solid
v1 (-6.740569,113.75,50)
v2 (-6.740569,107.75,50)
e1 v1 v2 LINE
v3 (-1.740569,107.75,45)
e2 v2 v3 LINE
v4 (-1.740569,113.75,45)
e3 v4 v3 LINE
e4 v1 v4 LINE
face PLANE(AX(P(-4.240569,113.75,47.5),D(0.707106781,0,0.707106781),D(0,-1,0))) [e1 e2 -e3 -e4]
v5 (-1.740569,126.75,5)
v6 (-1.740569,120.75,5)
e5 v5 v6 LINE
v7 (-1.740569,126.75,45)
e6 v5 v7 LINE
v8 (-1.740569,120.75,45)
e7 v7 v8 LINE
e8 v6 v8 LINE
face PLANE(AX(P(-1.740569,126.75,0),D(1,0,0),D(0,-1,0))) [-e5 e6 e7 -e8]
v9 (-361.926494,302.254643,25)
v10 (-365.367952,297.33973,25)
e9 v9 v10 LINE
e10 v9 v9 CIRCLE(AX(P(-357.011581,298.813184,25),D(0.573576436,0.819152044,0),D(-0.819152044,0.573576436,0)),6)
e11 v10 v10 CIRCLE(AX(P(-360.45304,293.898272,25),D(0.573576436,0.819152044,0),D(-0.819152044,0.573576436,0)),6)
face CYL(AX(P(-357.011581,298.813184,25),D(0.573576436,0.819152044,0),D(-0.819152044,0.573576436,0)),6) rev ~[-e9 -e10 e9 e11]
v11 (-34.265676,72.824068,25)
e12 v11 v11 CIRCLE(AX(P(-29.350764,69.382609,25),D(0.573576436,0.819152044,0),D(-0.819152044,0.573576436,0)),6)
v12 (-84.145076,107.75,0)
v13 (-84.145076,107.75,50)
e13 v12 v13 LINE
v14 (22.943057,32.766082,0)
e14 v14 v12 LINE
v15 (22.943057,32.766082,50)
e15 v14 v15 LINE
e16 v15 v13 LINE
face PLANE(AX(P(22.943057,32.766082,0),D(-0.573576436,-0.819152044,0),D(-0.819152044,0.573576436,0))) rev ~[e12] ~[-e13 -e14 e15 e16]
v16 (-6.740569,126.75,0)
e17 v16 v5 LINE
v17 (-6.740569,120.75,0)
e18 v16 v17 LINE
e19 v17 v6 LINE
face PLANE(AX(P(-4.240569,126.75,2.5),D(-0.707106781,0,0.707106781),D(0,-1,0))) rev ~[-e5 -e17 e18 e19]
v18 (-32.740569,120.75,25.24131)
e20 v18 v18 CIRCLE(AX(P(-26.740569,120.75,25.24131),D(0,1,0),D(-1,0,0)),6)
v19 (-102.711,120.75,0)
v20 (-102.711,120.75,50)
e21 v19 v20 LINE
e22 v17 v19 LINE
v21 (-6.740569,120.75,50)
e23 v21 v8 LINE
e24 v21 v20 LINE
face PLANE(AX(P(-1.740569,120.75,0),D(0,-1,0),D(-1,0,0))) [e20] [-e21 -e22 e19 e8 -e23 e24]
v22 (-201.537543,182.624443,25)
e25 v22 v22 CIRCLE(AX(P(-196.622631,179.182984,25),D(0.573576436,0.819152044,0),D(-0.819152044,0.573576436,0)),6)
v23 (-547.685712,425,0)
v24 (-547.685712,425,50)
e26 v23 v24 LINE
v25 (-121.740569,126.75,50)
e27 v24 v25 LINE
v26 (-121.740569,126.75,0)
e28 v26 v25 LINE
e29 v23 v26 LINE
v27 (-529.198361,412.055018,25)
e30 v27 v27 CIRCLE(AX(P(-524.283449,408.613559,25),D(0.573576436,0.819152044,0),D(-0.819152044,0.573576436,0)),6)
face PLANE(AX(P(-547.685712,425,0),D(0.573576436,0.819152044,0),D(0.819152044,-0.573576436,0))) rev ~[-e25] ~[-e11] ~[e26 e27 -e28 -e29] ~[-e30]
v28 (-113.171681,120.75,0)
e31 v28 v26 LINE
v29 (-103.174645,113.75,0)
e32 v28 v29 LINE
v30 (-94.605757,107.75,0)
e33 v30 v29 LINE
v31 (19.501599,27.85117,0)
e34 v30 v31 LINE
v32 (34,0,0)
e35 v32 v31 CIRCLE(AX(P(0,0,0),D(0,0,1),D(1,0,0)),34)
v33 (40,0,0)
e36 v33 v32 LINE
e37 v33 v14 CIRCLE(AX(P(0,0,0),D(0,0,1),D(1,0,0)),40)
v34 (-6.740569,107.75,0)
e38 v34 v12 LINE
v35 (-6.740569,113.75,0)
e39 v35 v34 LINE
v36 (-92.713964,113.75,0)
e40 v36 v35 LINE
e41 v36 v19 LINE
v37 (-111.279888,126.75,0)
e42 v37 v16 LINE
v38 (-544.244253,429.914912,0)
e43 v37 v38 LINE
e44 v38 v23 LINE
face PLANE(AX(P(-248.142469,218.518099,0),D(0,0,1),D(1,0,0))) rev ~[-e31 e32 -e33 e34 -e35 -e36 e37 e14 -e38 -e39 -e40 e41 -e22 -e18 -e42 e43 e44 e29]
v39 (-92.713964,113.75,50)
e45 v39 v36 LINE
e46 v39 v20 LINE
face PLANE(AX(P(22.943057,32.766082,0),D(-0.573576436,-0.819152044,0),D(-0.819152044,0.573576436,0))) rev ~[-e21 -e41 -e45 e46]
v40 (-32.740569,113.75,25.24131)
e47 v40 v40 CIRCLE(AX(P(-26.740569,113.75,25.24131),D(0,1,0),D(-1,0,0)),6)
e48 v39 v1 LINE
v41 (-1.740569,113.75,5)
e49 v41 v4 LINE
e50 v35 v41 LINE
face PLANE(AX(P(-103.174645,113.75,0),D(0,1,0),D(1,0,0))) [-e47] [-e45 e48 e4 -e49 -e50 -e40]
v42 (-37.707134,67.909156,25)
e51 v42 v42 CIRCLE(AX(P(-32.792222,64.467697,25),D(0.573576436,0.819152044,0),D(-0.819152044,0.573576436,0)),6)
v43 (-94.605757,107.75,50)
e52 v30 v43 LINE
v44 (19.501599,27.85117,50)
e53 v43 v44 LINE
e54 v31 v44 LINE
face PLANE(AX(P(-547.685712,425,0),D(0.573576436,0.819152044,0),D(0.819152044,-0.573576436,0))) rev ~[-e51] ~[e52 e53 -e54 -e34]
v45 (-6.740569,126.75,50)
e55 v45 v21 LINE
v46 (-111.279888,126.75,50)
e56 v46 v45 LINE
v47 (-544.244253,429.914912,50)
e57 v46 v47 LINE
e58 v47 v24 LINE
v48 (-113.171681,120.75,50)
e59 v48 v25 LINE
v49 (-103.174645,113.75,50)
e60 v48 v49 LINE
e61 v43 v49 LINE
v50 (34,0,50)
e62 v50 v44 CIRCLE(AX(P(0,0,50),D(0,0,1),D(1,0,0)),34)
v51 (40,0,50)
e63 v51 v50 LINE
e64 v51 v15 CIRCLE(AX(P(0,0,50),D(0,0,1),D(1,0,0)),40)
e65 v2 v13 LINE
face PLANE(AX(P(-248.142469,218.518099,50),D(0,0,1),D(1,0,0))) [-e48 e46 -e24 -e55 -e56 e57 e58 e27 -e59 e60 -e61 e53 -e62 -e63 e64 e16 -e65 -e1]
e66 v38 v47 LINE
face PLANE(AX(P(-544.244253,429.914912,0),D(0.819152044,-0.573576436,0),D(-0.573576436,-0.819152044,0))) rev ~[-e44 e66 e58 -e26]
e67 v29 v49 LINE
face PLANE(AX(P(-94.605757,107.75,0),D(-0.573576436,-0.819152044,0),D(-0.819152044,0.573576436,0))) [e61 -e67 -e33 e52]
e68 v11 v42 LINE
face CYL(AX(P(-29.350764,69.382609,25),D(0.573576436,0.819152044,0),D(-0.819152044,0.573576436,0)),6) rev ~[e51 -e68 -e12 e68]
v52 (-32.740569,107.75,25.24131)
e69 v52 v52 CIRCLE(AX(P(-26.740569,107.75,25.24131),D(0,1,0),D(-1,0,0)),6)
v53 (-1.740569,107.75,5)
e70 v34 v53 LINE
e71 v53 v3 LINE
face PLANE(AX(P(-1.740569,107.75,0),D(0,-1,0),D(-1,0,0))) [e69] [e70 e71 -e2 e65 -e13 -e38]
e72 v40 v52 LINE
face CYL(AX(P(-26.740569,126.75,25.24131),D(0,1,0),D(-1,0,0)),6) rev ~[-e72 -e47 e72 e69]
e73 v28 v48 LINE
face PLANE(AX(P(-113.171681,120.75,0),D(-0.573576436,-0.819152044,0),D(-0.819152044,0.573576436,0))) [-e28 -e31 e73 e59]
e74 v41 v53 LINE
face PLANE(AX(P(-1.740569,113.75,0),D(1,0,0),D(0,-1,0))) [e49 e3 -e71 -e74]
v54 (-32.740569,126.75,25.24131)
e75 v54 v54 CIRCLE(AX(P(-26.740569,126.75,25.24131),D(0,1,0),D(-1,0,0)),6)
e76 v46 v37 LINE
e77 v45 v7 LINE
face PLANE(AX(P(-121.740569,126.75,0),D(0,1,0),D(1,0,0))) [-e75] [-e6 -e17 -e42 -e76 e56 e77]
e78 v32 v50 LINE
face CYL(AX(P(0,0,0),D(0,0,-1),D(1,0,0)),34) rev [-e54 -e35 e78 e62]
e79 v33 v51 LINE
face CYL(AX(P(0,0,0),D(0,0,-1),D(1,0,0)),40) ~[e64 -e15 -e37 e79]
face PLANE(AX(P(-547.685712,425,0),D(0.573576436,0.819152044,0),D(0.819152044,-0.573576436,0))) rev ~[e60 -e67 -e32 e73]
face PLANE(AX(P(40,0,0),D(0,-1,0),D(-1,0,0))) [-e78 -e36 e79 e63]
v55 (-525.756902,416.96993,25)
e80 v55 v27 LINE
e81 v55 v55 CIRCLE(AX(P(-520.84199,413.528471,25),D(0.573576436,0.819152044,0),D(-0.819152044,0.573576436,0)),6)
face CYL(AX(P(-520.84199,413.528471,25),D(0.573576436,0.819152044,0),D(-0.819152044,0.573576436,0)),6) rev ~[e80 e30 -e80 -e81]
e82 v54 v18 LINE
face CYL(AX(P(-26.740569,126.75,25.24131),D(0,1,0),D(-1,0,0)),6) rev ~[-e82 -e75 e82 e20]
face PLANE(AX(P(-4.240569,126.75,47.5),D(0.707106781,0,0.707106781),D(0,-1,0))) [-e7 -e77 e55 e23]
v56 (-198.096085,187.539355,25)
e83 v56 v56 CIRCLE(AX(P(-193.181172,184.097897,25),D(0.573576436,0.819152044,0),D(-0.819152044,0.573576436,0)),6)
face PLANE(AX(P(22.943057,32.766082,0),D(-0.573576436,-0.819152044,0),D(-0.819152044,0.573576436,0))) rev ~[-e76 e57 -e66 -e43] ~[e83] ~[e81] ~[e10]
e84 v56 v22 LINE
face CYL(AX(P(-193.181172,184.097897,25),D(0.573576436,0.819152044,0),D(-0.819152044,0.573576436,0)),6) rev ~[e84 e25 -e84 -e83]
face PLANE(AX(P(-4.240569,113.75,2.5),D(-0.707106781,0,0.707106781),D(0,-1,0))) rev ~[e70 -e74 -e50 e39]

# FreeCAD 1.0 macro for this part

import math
import FreeCAD as App
import Part
import Sketcher
Q = App.Units.Quantity


def edges_at(feature, points):
    """Names of the edges that pass closest to the given points."""
    edges = feature.Shape.Edges
    near = lambda p: min(range(len(edges)), key=lambda i: edges[i].distToShape(Part.Vertex(*p))[0])
    return sorted({f"Edge{near(p) + 1}" for p in points})


def add_polygon(sketch, points):
    """Adds a closed chain of lines whose ends are joined by coincident constraints."""
    first, n = sketch.GeometryCount, len(points)
    for a, b in zip(points, points[1:] + points[:1]):
        sketch.addGeometry(Part.LineSegment(App.Vector(*a, 0), App.Vector(*b, 0)), False)
    for i in range(n):
        sketch.addConstraint(Sketcher.Constraint("Coincident", first + i, 2, first + (i + 1) % n, 1))

doc = App.newDocument("Part")
body = doc.addObject("PartDesign::Body", "Body")

sketch1 = doc.addObject("Sketcher::SketchObject", "Sketch")
body.addObject(sketch1)
sketch1.AttachmentSupport = (doc.XY_Plane, [""])
sketch1.MapMode = "FlatFace"
sketch1.addGeometry([
    Part.LineSegment(App.Vector(-548, 425, 0), App.Vector(20, 28, 0)),
    Part.ArcOfCircle(Part.Circle(App.Vector(0, 0, 0), App.Vector(0, 0, 1), 34), math.radians(0), math.radians(55)),
    Part.LineSegment(App.Vector(34, 0, 0), App.Vector(40, 0, 0)),
    Part.ArcOfCircle(Part.Circle(App.Vector(0, 0, 0), App.Vector(0, 0, 1), 40), math.radians(0), math.radians(55)),
    Part.LineSegment(App.Vector(23, 33, 0), App.Vector(-544, 430, 0)),
    Part.LineSegment(App.Vector(-544, 430, 0), App.Vector(-548, 425, 0)),
], False)
sketch1.addConstraint([
    Sketcher.Constraint("Tangent", 0, 2, 1, 2),
    Sketcher.Constraint("Coincident", 1, 1, 2, 1),
    Sketcher.Constraint("Coincident", 2, 2, 3, 1),
    Sketcher.Constraint("Tangent", 3, 2, 4, 1),
    Sketcher.Constraint("Coincident", 4, 2, 5, 1),
    Sketcher.Constraint("Coincident", 5, 2, 0, 1),
    Sketcher.Constraint("Horizontal", 2),
    Sketcher.Constraint("Coincident", 1, 3, -1, 1),
    Sketcher.Constraint("Coincident", 3, 3, -1, 1),
    Sketcher.Constraint("PointOnObject", 1, 1, -1),
    Sketcher.Constraint("Parallel", 0, 4),
    Sketcher.Constraint("Perpendicular", 4, 5),
    Sketcher.Constraint("Radius", 1, 34.0),
    Sketcher.Constraint("Radius", 3, 40.0),
    Sketcher.Constraint("Angle", 0, Q("-35 deg")),
    Sketcher.Constraint("DistanceY", -1, 1, 5, 2, 425.0),
])
pad1 = doc.addObject("PartDesign::Pad", "Pad")
body.addObject(pad1)
pad1.Profile = sketch1
pad1.Length = 50

sketch2 = doc.addObject("Sketcher::SketchObject", "Sketch001")
body.addObject(sketch2)
sketch2.AttachmentSupport = (doc.XY_Plane, [""])
sketch2.MapMode = "FlatFace"
add_polygon(sketch2, [(-103, 114), (-95, 108), (-2, 108), (-2, 114)])
add_polygon(sketch2, [(-122, 127), (-113, 121), (-2, 121), (-2, 127)])
sketch2.addConstraint([
    Sketcher.Constraint("Horizontal", 1),
    Sketcher.Constraint("Vertical", 2),
    Sketcher.Constraint("Horizontal", 3),
    Sketcher.Constraint("Horizontal", 5),
    Sketcher.Constraint("Vertical", 6),
    Sketcher.Constraint("Horizontal", 7),
    Sketcher.Constraint("Parallel", 0, 4),
    Sketcher.Constraint("Vertical", 2, 2, 5, 2),
    Sketcher.Constraint("Equal", 2, 6),
    Sketcher.Constraint("DistanceX", 7, 2, 7, 1, 120.0),
    Sketcher.Constraint("DistanceY", 2, 1, 2, 2, 6.0),
    Sketcher.Constraint("Angle", 0, Q("-35 deg")),
    Sketcher.Constraint("DistanceY", 3, 2, 4, 2, 7.0),
    Sketcher.Constraint("DistanceY", -1, 1, 0, 2, 107.75),
    Sketcher.Constraint("DistanceX", 1, 1, 1, 2, 92.865188),
    Sketcher.Constraint("DistanceX", 1, 2, -1, 1, 1.740569),
])
pad2 = doc.addObject("PartDesign::Pad", "Pad001")
body.addObject(pad2)
pad2.Profile = sketch2
pad2.Length = 50

sketch3 = doc.addObject("Sketcher::SketchObject", "Sketch002")
body.addObject(sketch3)
sketch3.AttachmentSupport = (doc.XZ_Plane, [""])
sketch3.MapMode = "FlatFace"
sketch3.AttachmentOffset = App.Placement(App.Vector(0, 0, -126.75), App.Rotation())
sketch3.addGeometry(Part.Circle(App.Vector(-27, 25, 0), App.Vector(0, 0, 1), 6), False)
sketch3.addConstraint([
    Sketcher.Constraint("Diameter", 0, 12.0),
    Sketcher.Constraint("DistanceX", 0, 3, -1, 1, 26.740569),
    Sketcher.Constraint("DistanceY", -1, 1, 0, 3, 25.24131),
])
pocket1 = doc.addObject("PartDesign::Pocket", "Pocket")
body.addObject(pocket1)
pocket1.Profile = sketch3
pocket1.Length = 30
pocket1.Reversed = True

sketch4 = doc.addObject("Sketcher::SketchObject", "Sketch003")
body.addObject(sketch4)
sketch4.Placement = App.Placement(App.Vector(22.943057, 32.766082, 0), App.Rotation(App.Vector(-0.819152044, 0.573576436, 0), App.Vector(0, 0, 0.999999999), App.Vector(0.573576436, 0.819152044, 0), "ZXY"))
sketch4.addGeometry(Part.Circle(App.Vector(664, 25, 0), App.Vector(0, 0, 1), 6), False)
sketch4.addConstraint([
    Sketcher.Constraint("Diameter", 0, 12.0),
    Sketcher.Constraint("DistanceY", -1, 1, 0, 3, 25.0),
    Sketcher.Constraint("DistanceX", -1, 1, 0, 3, 663.838967),
])
pocket2 = doc.addObject("PartDesign::Pocket", "Pocket001")
body.addObject(pocket2)
pocket2.Profile = sketch4
pocket2.Type = "ThroughAll"
doc.recompute()

datumline = doc.addObject("PartDesign::Line", "DatumLine")
body.addObject(datumline)
datumline.Placement = App.Placement(App.Vector(0, 0, 0), App.Rotation(App.Vector(0, 0, 1), App.Vector(0.819152044, -0.573576436, 0)))
linearpattern = doc.addObject("PartDesign::LinearPattern", "LinearPattern")
body.addObject(linearpattern)
linearpattern.Originals = [pocket2]
linearpattern.Direction = (datumline, [""])
linearpattern.Mode = "offset"
linearpattern.Offset = 200
linearpattern.Occurrences = 4
body.Tip = linearpattern
doc.recompute()

chamfer = doc.addObject("PartDesign::Chamfer", "Chamfer")
body.addObject(chamfer)
chamfer.Base = (linearpattern, edges_at(linearpattern, [
    (-1.741, 123.75, 50),
    (-1.741, 123.75, 0),
    (-1.741, 110.75, 0),
    (-1.741, 110.75, 50),
]))
chamfer.Size = 5

doc.recompute()
